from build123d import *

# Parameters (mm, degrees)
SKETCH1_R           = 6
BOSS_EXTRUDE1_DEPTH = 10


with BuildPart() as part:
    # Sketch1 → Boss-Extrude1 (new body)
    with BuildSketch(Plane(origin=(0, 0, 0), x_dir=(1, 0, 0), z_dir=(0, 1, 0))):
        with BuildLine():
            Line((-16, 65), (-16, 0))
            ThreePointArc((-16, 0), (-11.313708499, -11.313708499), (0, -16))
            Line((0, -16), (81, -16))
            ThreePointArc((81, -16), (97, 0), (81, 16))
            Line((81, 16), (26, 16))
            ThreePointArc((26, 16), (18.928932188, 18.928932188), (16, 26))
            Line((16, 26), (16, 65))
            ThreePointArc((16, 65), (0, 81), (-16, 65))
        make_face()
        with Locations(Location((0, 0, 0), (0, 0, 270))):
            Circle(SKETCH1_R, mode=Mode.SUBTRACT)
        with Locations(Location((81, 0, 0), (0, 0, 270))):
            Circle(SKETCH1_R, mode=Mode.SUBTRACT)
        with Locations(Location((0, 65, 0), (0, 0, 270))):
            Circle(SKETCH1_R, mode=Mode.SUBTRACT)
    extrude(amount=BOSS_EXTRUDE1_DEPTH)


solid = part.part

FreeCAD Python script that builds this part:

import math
import FreeCAD as App
import Part
import Sketcher
from FreeCAD import Vector
Q = App.Units.Quantity

doc = App.newDocument("Part")
body = doc.addObject("PartDesign::Body", "Body")

sketch1 = body.newObject("Sketcher::SketchObject", "Sketch")
sketch1.AttachmentSupport = (doc.getObject("XZ_Plane"), [""])
sketch1.MapMode = "FlatFace"
sketch1.addGeometry(Part.LineSegment(Vector(-16, -65, 0), Vector(-16, 0, 0)), False)
sketch1.addGeometry(Part.ArcOfCircle(Part.Circle(Vector(0, 0, 0), Vector(0, 0, 1), 16), math.radians(90), math.radians(180)), False)
sketch1.addGeometry(Part.LineSegment(Vector(0, 16, 0), Vector(81, 16, 0)), False)
sketch1.addGeometry(Part.ArcOfCircle(Part.Circle(Vector(81, 0, 0), Vector(0, 0, 1), 16), math.radians(-90), math.radians(90)), False)
sketch1.addGeometry(Part.LineSegment(Vector(81, -16, 0), Vector(26, -16, 0)), False)
sketch1.addGeometry(Part.ArcOfCircle(Part.Circle(Vector(26, -26, 0), Vector(0, 0, 1), 10), math.radians(90), math.radians(180)), False)
sketch1.addGeometry(Part.LineSegment(Vector(16, -26, 0), Vector(16, -65, 0)), False)
sketch1.addGeometry(Part.ArcOfCircle(Part.Circle(Vector(0, -65, 0), Vector(0, 0, 1), 16), math.radians(180), math.radians(360)), False)
sketch1.addGeometry(Part.Circle(Vector(0, 0, 0), Vector(0, 0, 1), 6), False)
sketch1.addGeometry(Part.Circle(Vector(81, 0, 0), Vector(0, 0, 1), 6), False)
sketch1.addGeometry(Part.Circle(Vector(0, -65, 0), Vector(0, 0, 1), 6), False)
sketch1.addConstraint(Sketcher.Constraint("Tangent", 0, 2, 1, 2))
sketch1.addConstraint(Sketcher.Constraint("Tangent", 1, 1, 2, 1))
sketch1.addConstraint(Sketcher.Constraint("Tangent", 2, 2, 3, 2))
sketch1.addConstraint(Sketcher.Constraint("Tangent", 3, 1, 4, 1))
sketch1.addConstraint(Sketcher.Constraint("Tangent", 4, 2, 5, 1))
sketch1.addConstraint(Sketcher.Constraint("Tangent", 5, 2, 6, 1))
sketch1.addConstraint(Sketcher.Constraint("Tangent", 6, 2, 7, 2))
sketch1.addConstraint(Sketcher.Constraint("Tangent", 7, 1, 0, 1))
sketch1.addConstraint(Sketcher.Constraint("Vertical", 0))
sketch1.addConstraint(Sketcher.Constraint("Horizontal", 2))
sketch1.addConstraint(Sketcher.Constraint("Horizontal", 4))
sketch1.addConstraint(Sketcher.Constraint("Vertical", 6))
sketch1.addConstraint(Sketcher.Constraint("Coincident", 1, 3, -1, 1))
sketch1.addConstraint(Sketcher.Constraint("Coincident", 8, 3, -1, 1))
sketch1.addConstraint(Sketcher.Constraint("Coincident", 9, 3, 3, 3))
sketch1.addConstraint(Sketcher.Constraint("Coincident", 10, 3, 7, 3))
sketch1.addConstraint(Sketcher.Constraint("Equal", 1, 3))
sketch1.addConstraint(Sketcher.Constraint("Equal", 3, 7))
sketch1.addConstraint(Sketcher.Constraint("Equal", 8, 9))
sketch1.addConstraint(Sketcher.Constraint("Equal", 9, 10))
sketch1.addConstraint(Sketcher.Constraint("Diameter", 8, Q("12 mm")))
sketch1.addConstraint(Sketcher.Constraint("Radius", 1, Q("16 mm")))
sketch1.addConstraint(Sketcher.Constraint("Radius", 5, Q("10 mm")))
sketch1.addConstraint(Sketcher.Constraint("DistanceX", 2, 1, 2, 2, Q("81 mm")))
sketch1.addConstraint(Sketcher.Constraint("DistanceY", 0, 1, 0, 2, Q("65 mm")))
pad1 = body.newObject("PartDesign::Pad", "Pad")
pad1.Profile = sketch1
pad1.Length = 10
pad1.Reversed = True

doc.recompute()
